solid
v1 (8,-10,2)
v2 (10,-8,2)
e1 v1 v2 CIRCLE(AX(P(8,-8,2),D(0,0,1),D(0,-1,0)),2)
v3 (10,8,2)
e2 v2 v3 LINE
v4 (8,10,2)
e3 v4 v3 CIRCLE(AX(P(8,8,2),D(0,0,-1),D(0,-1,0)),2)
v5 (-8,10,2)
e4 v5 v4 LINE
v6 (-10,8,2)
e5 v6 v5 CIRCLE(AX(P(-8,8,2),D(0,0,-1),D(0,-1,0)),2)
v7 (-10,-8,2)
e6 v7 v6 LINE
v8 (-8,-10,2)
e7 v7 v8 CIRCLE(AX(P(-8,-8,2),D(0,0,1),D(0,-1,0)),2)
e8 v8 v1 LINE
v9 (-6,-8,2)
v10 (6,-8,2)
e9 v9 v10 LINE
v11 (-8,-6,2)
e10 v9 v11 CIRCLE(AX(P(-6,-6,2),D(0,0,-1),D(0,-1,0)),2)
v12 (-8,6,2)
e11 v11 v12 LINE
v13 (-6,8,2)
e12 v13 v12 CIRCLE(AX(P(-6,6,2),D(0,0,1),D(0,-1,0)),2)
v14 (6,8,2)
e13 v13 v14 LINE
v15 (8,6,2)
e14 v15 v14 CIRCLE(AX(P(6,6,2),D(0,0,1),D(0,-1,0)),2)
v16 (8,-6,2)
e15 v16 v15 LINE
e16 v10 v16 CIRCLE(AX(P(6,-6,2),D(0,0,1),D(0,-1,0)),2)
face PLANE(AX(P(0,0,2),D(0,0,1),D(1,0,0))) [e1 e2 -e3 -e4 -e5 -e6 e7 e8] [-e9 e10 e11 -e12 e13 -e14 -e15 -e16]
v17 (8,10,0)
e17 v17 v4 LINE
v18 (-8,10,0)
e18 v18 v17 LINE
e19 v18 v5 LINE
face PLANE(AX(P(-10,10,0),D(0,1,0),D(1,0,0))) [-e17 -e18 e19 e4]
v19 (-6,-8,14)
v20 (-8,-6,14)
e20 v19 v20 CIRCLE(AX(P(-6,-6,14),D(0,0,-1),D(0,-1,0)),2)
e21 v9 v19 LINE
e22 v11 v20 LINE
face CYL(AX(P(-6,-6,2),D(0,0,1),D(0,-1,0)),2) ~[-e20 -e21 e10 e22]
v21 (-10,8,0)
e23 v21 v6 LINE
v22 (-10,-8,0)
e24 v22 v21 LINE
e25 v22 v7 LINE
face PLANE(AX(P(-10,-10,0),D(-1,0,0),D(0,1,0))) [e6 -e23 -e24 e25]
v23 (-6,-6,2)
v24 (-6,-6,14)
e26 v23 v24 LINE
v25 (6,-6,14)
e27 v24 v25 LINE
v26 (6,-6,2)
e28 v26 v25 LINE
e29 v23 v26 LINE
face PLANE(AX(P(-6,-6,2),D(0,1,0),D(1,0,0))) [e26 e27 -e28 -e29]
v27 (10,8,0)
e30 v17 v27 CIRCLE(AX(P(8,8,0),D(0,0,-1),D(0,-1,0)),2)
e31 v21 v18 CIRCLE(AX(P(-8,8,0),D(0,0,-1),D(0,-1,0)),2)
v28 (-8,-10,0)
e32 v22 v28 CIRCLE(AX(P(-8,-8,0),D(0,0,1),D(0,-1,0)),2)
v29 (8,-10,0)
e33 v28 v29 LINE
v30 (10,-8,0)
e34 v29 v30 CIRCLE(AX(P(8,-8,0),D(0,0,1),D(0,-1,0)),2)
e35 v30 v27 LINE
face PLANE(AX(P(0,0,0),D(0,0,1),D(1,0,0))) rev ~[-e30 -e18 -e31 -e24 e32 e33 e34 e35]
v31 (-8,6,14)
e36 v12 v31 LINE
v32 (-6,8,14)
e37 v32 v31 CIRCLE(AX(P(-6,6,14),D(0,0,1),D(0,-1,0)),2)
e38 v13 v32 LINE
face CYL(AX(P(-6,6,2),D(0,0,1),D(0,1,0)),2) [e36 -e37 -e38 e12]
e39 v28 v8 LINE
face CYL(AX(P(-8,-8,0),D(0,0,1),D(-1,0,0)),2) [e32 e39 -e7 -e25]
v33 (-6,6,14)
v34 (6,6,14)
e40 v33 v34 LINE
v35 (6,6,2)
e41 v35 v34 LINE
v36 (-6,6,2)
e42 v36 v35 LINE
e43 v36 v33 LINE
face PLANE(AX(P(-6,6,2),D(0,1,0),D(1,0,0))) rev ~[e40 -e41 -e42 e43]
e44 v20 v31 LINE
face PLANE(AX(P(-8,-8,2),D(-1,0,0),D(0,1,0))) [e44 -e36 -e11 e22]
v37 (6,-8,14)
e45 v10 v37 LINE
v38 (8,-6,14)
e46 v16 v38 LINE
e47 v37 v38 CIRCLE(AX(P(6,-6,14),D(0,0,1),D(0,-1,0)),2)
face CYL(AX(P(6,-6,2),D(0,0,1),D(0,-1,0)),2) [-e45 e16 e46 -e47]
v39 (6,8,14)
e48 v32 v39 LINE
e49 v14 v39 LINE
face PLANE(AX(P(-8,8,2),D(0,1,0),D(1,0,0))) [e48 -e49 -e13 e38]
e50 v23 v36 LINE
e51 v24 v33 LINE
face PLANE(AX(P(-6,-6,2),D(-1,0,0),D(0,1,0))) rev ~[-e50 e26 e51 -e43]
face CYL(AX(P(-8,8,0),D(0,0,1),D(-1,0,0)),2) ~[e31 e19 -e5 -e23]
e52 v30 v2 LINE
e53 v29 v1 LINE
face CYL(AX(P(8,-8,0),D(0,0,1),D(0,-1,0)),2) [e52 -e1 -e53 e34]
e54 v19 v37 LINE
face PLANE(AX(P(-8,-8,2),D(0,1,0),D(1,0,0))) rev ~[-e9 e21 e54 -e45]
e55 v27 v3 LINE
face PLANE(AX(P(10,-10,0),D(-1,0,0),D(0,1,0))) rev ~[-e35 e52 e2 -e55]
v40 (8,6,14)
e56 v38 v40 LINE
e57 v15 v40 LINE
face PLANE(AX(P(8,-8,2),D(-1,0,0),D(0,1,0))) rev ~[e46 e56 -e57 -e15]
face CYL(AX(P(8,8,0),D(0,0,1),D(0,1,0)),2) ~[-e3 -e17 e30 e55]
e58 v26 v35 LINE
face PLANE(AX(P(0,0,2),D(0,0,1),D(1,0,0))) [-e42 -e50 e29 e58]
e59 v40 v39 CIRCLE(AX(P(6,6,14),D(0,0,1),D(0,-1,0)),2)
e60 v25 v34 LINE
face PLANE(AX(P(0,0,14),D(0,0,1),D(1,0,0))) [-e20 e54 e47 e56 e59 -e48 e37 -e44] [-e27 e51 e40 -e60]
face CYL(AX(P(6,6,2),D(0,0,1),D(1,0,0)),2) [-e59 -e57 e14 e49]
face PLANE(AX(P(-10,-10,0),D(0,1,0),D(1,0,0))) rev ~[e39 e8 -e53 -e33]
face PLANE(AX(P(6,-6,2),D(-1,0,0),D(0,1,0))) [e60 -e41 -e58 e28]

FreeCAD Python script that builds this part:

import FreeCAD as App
import Part
import Sketcher


def edges_at(feature, points):
    """Names of the edges that pass closest to the given points."""
    edges = feature.Shape.Edges
    near = lambda p: min(range(len(edges)), key=lambda i: edges[i].distToShape(Part.Vertex(*p))[0])
    return sorted({f"Edge{near(p) + 1}" for p in points})


def add_polygon(sketch, points):
    """Adds a closed chain of lines whose ends are joined by coincident constraints."""
    first, n = sketch.GeometryCount, len(points)
    for a, b in zip(points, points[1:] + points[:1]):
        sketch.addGeometry(Part.LineSegment(App.Vector(*a, 0), App.Vector(*b, 0)), False)
    for i in range(n):
        sketch.addConstraint(Sketcher.Constraint("Coincident", first + i, 2, first + (i + 1) % n, 1))

doc = App.newDocument("Part")
params = doc.addObject("Spreadsheet::Sheet", "Params")
for row, (alias, value) in enumerate([
    ("sketch1_width", "20 mm"),
    ("pad1_length", "2 mm"),
    ("sketch2_width", "16 mm"),
    ("sketch2_width2", "12 mm"),
    ("pad2_length", "12 mm"),
    ("fillet_radius", "2 mm"),
], start=1):
    params.set(f"A{row}", alias)
    params.set(f"B{row}", "=" + value)
    params.setAlias(f"B{row}", alias)

body = doc.addObject("PartDesign::Body", "Body")

# Sketch on XY plane
sketch1 = body.newObject("Sketcher::SketchObject", "Sketch")
sketch1.AttachmentSupport = (doc.getObject("XY_Plane"), [""])
sketch1.MapMode = "FlatFace"
add_polygon(sketch1, [(-10, 10), (-10, -10), (10, -10), (10, 10)])  # lines 0-3
sketch1.addConstraint([
    Sketcher.Constraint("Vertical", 0),
    Sketcher.Constraint("Horizontal", 1),
    Sketcher.Constraint("Vertical", 2),
    Sketcher.Constraint("Horizontal", 3),
    Sketcher.Constraint("Symmetric", 0, 2, 2, 2, -1, 1),
    Sketcher.Constraint("Equal", 3, 0),
    Sketcher.Constraint("DistanceX", 1, 1, 1, 2, 20.0),
])
sketch1.setExpression("Constraints[10]", "Params.sketch1_width")
pad1 = body.newObject("PartDesign::Pad", "Pad")
pad1.Profile = sketch1
pad1.setExpression("Length", "Params.pad1_length")

# Sketch on XY plane
sketch2 = body.newObject("Sketcher::SketchObject", "Sketch001")
sketch2.AttachmentSupport = (doc.getObject("XY_Plane"), [""])
sketch2.MapMode = "FlatFace"
sketch2.AttachmentOffset = App.Placement(App.Vector(0, 0, 2), App.Rotation())
add_polygon(sketch2, [(-8, 8), (-8, -8), (8, -8), (8, 8)])  # lines 0-3
add_polygon(sketch2, [(6, -6), (-6, -6), (-6, 6), (6, 6)])  # lines 4-7
sketch2.addConstraint([
    Sketcher.Constraint("Vertical", 0),
    Sketcher.Constraint("Horizontal", 1),
    Sketcher.Constraint("Vertical", 2),
    Sketcher.Constraint("Horizontal", 3),
    Sketcher.Constraint("Horizontal", 4),
    Sketcher.Constraint("Vertical", 5),
    Sketcher.Constraint("Horizontal", 6),
    Sketcher.Constraint("Vertical", 7),
    Sketcher.Constraint("Symmetric", 0, 2, 2, 2, -1, 1),
    Sketcher.Constraint("Symmetric", 4, 2, 6, 2, -1, 1),
    Sketcher.Constraint("Equal", 3, 0),
    Sketcher.Constraint("Equal", 6, 5),
    Sketcher.Constraint("DistanceX", 1, 1, 1, 2, 16.0),
    Sketcher.Constraint("DistanceX", 4, 2, 4, 1, 12.0),
])
sketch2.setExpression("Constraints[20]", "Params.sketch2_width")
sketch2.setExpression("Constraints[21]", "Params.sketch2_width2")
pad2 = body.newObject("PartDesign::Pad", "Pad001")
pad2.Profile = sketch2
pad2.setExpression("Length", "Params.pad2_length")
doc.recompute()

fillet = body.newObject("PartDesign::Fillet", "Fillet")
fillet.Base = (pad2, edges_at(pad2, [
    (-10, 10, 1),
    (-8, 8, 8),
    (-10, -10, 1),
    (-8, -8, 8),
    (10, 10, 1),
    (8, 8, 8),
    (10, -10, 1),
    (8, -8, 8),
]))
fillet.setExpression("Radius", "Params.fillet_radius")

doc.recompute()
